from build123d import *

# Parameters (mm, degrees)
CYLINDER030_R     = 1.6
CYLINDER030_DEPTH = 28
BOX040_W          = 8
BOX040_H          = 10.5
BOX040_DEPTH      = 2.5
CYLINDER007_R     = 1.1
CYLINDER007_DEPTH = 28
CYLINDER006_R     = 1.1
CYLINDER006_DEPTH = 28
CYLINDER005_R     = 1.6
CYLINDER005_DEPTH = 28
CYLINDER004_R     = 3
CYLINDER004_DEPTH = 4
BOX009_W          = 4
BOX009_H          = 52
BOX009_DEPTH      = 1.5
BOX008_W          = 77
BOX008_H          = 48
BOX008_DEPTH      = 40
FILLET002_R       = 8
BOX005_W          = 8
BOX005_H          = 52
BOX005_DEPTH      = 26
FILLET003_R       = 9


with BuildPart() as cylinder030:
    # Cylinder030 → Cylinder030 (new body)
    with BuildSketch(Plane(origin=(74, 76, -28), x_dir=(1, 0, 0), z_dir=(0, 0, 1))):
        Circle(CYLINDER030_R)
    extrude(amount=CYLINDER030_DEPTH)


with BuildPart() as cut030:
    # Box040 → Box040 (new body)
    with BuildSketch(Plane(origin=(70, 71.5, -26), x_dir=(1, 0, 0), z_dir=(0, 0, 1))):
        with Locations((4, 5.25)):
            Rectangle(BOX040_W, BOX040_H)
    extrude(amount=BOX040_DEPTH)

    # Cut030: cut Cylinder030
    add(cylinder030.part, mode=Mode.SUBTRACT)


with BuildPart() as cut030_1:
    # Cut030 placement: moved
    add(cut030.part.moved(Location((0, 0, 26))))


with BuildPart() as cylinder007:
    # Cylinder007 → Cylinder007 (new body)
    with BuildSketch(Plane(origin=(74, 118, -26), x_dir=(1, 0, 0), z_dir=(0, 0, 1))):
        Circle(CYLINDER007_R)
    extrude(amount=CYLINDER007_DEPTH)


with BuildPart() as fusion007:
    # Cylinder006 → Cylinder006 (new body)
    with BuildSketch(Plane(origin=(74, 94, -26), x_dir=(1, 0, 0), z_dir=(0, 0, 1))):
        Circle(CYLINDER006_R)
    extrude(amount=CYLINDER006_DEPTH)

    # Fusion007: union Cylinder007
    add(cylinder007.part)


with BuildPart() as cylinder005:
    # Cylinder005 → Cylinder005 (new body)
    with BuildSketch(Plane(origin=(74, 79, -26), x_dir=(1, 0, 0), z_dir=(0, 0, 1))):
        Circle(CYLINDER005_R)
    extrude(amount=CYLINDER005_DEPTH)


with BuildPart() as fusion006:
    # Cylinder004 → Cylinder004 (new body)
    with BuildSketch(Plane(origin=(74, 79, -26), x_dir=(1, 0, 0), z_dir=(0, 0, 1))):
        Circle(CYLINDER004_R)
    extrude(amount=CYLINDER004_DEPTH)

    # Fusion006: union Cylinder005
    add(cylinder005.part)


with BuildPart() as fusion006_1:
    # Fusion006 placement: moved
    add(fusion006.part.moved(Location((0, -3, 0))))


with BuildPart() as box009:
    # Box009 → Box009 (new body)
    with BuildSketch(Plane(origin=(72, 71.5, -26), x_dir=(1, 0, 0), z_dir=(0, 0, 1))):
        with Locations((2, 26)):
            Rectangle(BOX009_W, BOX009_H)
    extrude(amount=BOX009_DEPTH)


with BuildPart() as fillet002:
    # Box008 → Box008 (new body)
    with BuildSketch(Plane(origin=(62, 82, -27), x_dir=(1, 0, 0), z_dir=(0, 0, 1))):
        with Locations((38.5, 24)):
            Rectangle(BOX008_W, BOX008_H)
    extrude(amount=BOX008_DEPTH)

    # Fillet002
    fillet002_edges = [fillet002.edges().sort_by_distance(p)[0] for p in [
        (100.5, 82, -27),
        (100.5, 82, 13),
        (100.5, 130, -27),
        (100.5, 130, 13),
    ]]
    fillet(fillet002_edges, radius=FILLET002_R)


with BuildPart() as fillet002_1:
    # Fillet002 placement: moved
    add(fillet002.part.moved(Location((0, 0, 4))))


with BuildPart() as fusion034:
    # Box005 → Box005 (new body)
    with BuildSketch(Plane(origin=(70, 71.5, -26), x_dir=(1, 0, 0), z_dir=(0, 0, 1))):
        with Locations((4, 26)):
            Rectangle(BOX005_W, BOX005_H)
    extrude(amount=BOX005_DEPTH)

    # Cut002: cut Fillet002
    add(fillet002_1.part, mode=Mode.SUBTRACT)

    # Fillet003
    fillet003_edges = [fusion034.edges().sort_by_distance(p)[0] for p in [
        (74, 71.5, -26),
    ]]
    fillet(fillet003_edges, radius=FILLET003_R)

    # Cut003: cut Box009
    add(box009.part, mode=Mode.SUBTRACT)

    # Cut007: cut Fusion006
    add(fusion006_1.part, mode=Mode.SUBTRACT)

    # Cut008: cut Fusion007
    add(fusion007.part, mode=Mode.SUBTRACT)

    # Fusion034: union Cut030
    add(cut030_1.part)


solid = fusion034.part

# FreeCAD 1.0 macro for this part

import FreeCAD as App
import Part
import Sketcher

V = App.Vector
Q = App.Units.Quantity


def edges_at(feature, points):
    """Names of the edges that pass closest to the given points."""
    edges = feature.Shape.Edges
    near = lambda p: min(range(len(edges)), key=lambda i: edges[i].distToShape(Part.Vertex(*p))[0])
    return sorted({f"Edge{near(p) + 1}" for p in points})


def add_polygon(sketch, points):
    """Adds a closed chain of lines whose ends are joined by coincident constraints."""
    first, n = sketch.GeometryCount, len(points)
    for a, b in zip(points, points[1:] + points[:1]):
        sketch.addGeometry(Part.LineSegment(App.Vector(*a, 0), App.Vector(*b, 0)), False)
    for i in range(n):
        sketch.addConstraint(Sketcher.Constraint("Coincident", first + i, 2, first + (i + 1) % n, 1))

doc = App.newDocument("Part")
body = doc.addObject("PartDesign::Body", "Body")

sketch1 = doc.addObject("Sketcher::SketchObject", "Sketch")
body.addObject(sketch1)
sketch1.AttachmentSupport = (doc.XY_Plane, [""])
sketch1.MapMode = "FlatFace"
sketch1.AttachmentOffset = App.Placement(V(0, 0, -28), App.Rotation())
sketch1.addGeometry(Part.Circle(V(74, 76, 0), V(0, 0, 1), 1.6), False)
sketch1.addConstraint([
    Sketcher.Constraint("Diameter", 0, Q("3.2 mm")),
    Sketcher.Constraint("DistanceX", -1, 1, 0, 3, Q("74 mm")),
    Sketcher.Constraint("DistanceY", -1, 1, 0, 3, Q("76 mm")),
])
pad1 = doc.addObject("PartDesign::Pad", "Pad")
body.addObject(pad1)
pad1.Profile = sketch1
pad1.Length = 28
body2 = doc.addObject("PartDesign::Body", "Body001")

sketch2 = doc.addObject("Sketcher::SketchObject", "Sketch001")
body2.addObject(sketch2)
sketch2.AttachmentSupport = (doc.getObject("XY_Plane001"), [""])
sketch2.MapMode = "FlatFace"
sketch2.AttachmentOffset = App.Placement(V(0, 0, -26), App.Rotation())
add_polygon(sketch2, [(70, 82), (70, 72), (78, 72), (78, 82)])
sketch2.addConstraint([
    Sketcher.Constraint("Vertical", 0),
    Sketcher.Constraint("Horizontal", 1),
    Sketcher.Constraint("Vertical", 2),
    Sketcher.Constraint("Horizontal", 3),
    Sketcher.Constraint("DistanceX", 1, 1, 1, 2, Q("8 mm")),
    Sketcher.Constraint("DistanceY", 0, 2, 0, 1, Q("10.5 mm")),
    Sketcher.Constraint("DistanceX", -1, 1, 0, 2, Q("70 mm")),
    Sketcher.Constraint("DistanceY", -1, 1, 2, 2, Q("82 mm")),
])
pad2 = doc.addObject("PartDesign::Pad", "Pad001")
body2.addObject(pad2)
pad2.Profile = sketch2
pad2.Length = 2.5
doc.recompute()

boolean = doc.addObject("PartDesign::Boolean", "Boolean")
body2.addObject(boolean)
boolean.Type = "Cut"
boolean.addObjects([body])
body3 = doc.addObject("PartDesign::Body", "Body002")
doc.recompute()

body2.Placement = App.Placement(V(0, 0, 26), App.Rotation(V(0, 0, 1), 0))
boolean2 = doc.addObject("PartDesign::Boolean", "Boolean001")
body3.addObject(boolean2)
boolean2.Type = "Fuse"
boolean2.addObjects([body2])
body4 = doc.addObject("PartDesign::Body", "Body003")

sketch3 = doc.addObject("Sketcher::SketchObject", "Sketch002")
body4.addObject(sketch3)
sketch3.AttachmentSupport = (doc.getObject("XY_Plane003"), [""])
sketch3.MapMode = "FlatFace"
sketch3.AttachmentOffset = App.Placement(V(0, 0, -26), App.Rotation())
sketch3.addGeometry(Part.Circle(V(74, 118, 0), V(0, 0, 1), 1.1), False)
sketch3.addConstraint([
    Sketcher.Constraint("Diameter", 0, Q("2.2 mm")),
    Sketcher.Constraint("DistanceX", -1, 1, 0, 3, Q("74 mm")),
    Sketcher.Constraint("DistanceY", -1, 1, 0, 3, Q("118 mm")),
])
pad3 = doc.addObject("PartDesign::Pad", "Pad002")
body4.addObject(pad3)
pad3.Profile = sketch3
pad3.Length = 28
body5 = doc.addObject("PartDesign::Body", "Body004")
body5.AllowCompound = True

sketch4 = doc.addObject("Sketcher::SketchObject", "Sketch003")
body5.addObject(sketch4)
sketch4.AttachmentSupport = (doc.getObject("XY_Plane004"), [""])
sketch4.MapMode = "FlatFace"
sketch4.AttachmentOffset = App.Placement(V(0, 0, -26), App.Rotation())
sketch4.addGeometry(Part.Circle(V(74, 94, 0), V(0, 0, 1), 1.1), False)
sketch4.addConstraint([
    Sketcher.Constraint("Diameter", 0, Q("2.2 mm")),
    Sketcher.Constraint("DistanceX", -1, 1, 0, 3, Q("74 mm")),
    Sketcher.Constraint("DistanceY", -1, 1, 0, 3, Q("94 mm")),
])
pad4 = doc.addObject("PartDesign::Pad", "Pad003")
body5.addObject(pad4)
pad4.Profile = sketch4
pad4.Length = 28
doc.recompute()

boolean3 = doc.addObject("PartDesign::Boolean", "Boolean002")
body5.addObject(boolean3)
boolean3.Type = "Fuse"
boolean3.addObjects([body4])
body6 = doc.addObject("PartDesign::Body", "Body005")

sketch5 = doc.addObject("Sketcher::SketchObject", "Sketch004")
body6.addObject(sketch5)
sketch5.AttachmentSupport = (doc.getObject("XY_Plane005"), [""])
sketch5.MapMode = "FlatFace"
sketch5.AttachmentOffset = App.Placement(V(0, 0, -26), App.Rotation())
sketch5.addGeometry(Part.Circle(V(74, 79, 0), V(0, 0, 1), 1.6), False)
sketch5.addConstraint([
    Sketcher.Constraint("Diameter", 0, Q("3.2 mm")),
    Sketcher.Constraint("DistanceX", -1, 1, 0, 3, Q("74 mm")),
    Sketcher.Constraint("DistanceY", -1, 1, 0, 3, Q("79 mm")),
])
pad5 = doc.addObject("PartDesign::Pad", "Pad004")
body6.addObject(pad5)
pad5.Profile = sketch5
pad5.Length = 28
body7 = doc.addObject("PartDesign::Body", "Body006")

sketch6 = doc.addObject("Sketcher::SketchObject", "Sketch005")
body7.addObject(sketch6)
sketch6.AttachmentSupport = (doc.getObject("XY_Plane006"), [""])
sketch6.MapMode = "FlatFace"
sketch6.AttachmentOffset = App.Placement(V(0, 0, -26), App.Rotation())
sketch6.addGeometry(Part.Circle(V(74, 79, 0), V(0, 0, 1), 3), False)
sketch6.addConstraint([
    Sketcher.Constraint("Diameter", 0, Q("6 mm")),
    Sketcher.Constraint("DistanceX", -1, 1, 0, 3, Q("74 mm")),
    Sketcher.Constraint("DistanceY", -1, 1, 0, 3, Q("79 mm")),
])
pad6 = doc.addObject("PartDesign::Pad", "Pad005")
body7.addObject(pad6)
pad6.Profile = sketch6
pad6.Length = 4
doc.recompute()

boolean4 = doc.addObject("PartDesign::Boolean", "Boolean003")
body7.addObject(boolean4)
boolean4.Type = "Fuse"
boolean4.addObjects([body6])
body8 = doc.addObject("PartDesign::Body", "Body007")
doc.recompute()

body7.Placement = App.Placement(V(0, -3, 0), App.Rotation(V(0, 0, 1), 0))
boolean5 = doc.addObject("PartDesign::Boolean", "Boolean004")
body8.addObject(boolean5)
boolean5.Type = "Fuse"
boolean5.addObjects([body7])
body9 = doc.addObject("PartDesign::Body", "Body008")

sketch7 = doc.addObject("Sketcher::SketchObject", "Sketch006")
body9.addObject(sketch7)
sketch7.AttachmentSupport = (doc.getObject("XY_Plane008"), [""])
sketch7.MapMode = "FlatFace"
sketch7.AttachmentOffset = App.Placement(V(0, 0, -26), App.Rotation())
add_polygon(sketch7, [(72, 123.5), (72, 71.5), (76, 71.5), (76, 123.5)])
sketch7.addConstraint([
    Sketcher.Constraint("Vertical", 0),
    Sketcher.Constraint("Horizontal", 1),
    Sketcher.Constraint("Vertical", 2),
    Sketcher.Constraint("Horizontal", 3),
    Sketcher.Constraint("DistanceX", 1, 1, 1, 2, Q("4 mm")),
    Sketcher.Constraint("DistanceY", 0, 2, 0, 1, Q("52 mm")),
    Sketcher.Constraint("DistanceX", -1, 1, 0, 2, Q("72 mm")),
    Sketcher.Constraint("DistanceY", -1, 1, 0, 2, Q("71.5 mm")),
])
pad7 = doc.addObject("PartDesign::Pad", "Pad006")
body9.addObject(pad7)
pad7.Profile = sketch7
pad7.Length = 1.5
body10 = doc.addObject("PartDesign::Body", "Body009")

sketch8 = doc.addObject("Sketcher::SketchObject", "Sketch007")
body10.addObject(sketch8)
sketch8.AttachmentSupport = (doc.getObject("XY_Plane009"), [""])
sketch8.MapMode = "FlatFace"
sketch8.AttachmentOffset = App.Placement(V(0, 0, -27), App.Rotation())
add_polygon(sketch8, [(62, 130), (62, 82), (139, 82), (139, 130)])
sketch8.addConstraint([
    Sketcher.Constraint("Vertical", 0),
    Sketcher.Constraint("Horizontal", 1),
    Sketcher.Constraint("Vertical", 2),
    Sketcher.Constraint("Horizontal", 3),
    Sketcher.Constraint("DistanceX", 1, 1, 1, 2, Q("77 mm")),
    Sketcher.Constraint("DistanceY", 0, 2, 0, 1, Q("48 mm")),
    Sketcher.Constraint("DistanceX", -1, 1, 0, 2, Q("62 mm")),
    Sketcher.Constraint("DistanceY", -1, 1, 0, 2, Q("82 mm")),
])
pad8 = doc.addObject("PartDesign::Pad", "Pad007")
body10.addObject(pad8)
pad8.Profile = sketch8
pad8.Length = 40
doc.recompute()

fillet = doc.addObject("PartDesign::Fillet", "Fillet")
body10.addObject(fillet)
fillet.Base = (pad8, edges_at(pad8, [
    (100.5, 82, -27),
    (100.5, 82, 13),
    (100.5, 130, -27),
    (100.5, 130, 13),
]))
fillet.Radius = 8
body11 = doc.addObject("PartDesign::Body", "Body010")
doc.recompute()

body10.Placement = App.Placement(V(0, 0, 4), App.Rotation(V(0, 0, 1), 0))
boolean6 = doc.addObject("PartDesign::Boolean", "Boolean005")
body11.addObject(boolean6)
boolean6.Type = "Fuse"
boolean6.addObjects([body10])
body12 = doc.addObject("PartDesign::Body", "Body011")

sketch9 = doc.addObject("Sketcher::SketchObject", "Sketch008")
body12.addObject(sketch9)
sketch9.AttachmentSupport = (doc.getObject("XY_Plane011"), [""])
sketch9.MapMode = "FlatFace"
sketch9.AttachmentOffset = App.Placement(V(0, 0, -26), App.Rotation())
add_polygon(sketch9, [(70, 124), (70, 72), (78, 72), (78, 124)])
sketch9.addConstraint([
    Sketcher.Constraint("Vertical", 0),
    Sketcher.Constraint("Horizontal", 1),
    Sketcher.Constraint("Vertical", 2),
    Sketcher.Constraint("Horizontal", 3),
    Sketcher.Constraint("DistanceX", 1, 1, 1, 2, Q("8 mm")),
    Sketcher.Constraint("DistanceY", 0, 2, 0, 1, Q("52 mm")),
    Sketcher.Constraint("DistanceX", -1, 1, 0, 2, Q("70 mm")),
    Sketcher.Constraint("DistanceY", -1, 1, 0, 2, Q("71.5 mm")),
])
pad9 = doc.addObject("PartDesign::Pad", "Pad008")
body12.addObject(pad9)
pad9.Profile = sketch9
pad9.Length = 26
doc.recompute()

boolean7 = doc.addObject("PartDesign::Boolean", "Boolean006")
body12.addObject(boolean7)
boolean7.Type = "Cut"
boolean7.addObjects([body11])
doc.recompute()

fillet2 = doc.addObject("PartDesign::Fillet", "Fillet001")
body12.addObject(fillet2)
fillet2.Base = (boolean7, edges_at(boolean7, [(74, 71.5, -26)]))
fillet2.Radius = 9
doc.recompute()

boolean8 = doc.addObject("PartDesign::Boolean", "Boolean007")
body12.addObject(boolean8)
boolean8.Type = "Cut"
boolean8.addObjects([body9])
doc.recompute()

boolean9 = doc.addObject("PartDesign::Boolean", "Boolean008")
body12.addObject(boolean9)
boolean9.Type = "Cut"
boolean9.addObjects([body8])
doc.recompute()

boolean10 = doc.addObject("PartDesign::Boolean", "Boolean009")
body12.addObject(boolean10)
boolean10.Type = "Cut"
boolean10.addObjects([body5])
doc.recompute()

boolean11 = doc.addObject("PartDesign::Boolean", "Boolean010")
body12.addObject(boolean11)
boolean11.Type = "Fuse"
boolean11.addObjects([body3])

doc.recompute()
